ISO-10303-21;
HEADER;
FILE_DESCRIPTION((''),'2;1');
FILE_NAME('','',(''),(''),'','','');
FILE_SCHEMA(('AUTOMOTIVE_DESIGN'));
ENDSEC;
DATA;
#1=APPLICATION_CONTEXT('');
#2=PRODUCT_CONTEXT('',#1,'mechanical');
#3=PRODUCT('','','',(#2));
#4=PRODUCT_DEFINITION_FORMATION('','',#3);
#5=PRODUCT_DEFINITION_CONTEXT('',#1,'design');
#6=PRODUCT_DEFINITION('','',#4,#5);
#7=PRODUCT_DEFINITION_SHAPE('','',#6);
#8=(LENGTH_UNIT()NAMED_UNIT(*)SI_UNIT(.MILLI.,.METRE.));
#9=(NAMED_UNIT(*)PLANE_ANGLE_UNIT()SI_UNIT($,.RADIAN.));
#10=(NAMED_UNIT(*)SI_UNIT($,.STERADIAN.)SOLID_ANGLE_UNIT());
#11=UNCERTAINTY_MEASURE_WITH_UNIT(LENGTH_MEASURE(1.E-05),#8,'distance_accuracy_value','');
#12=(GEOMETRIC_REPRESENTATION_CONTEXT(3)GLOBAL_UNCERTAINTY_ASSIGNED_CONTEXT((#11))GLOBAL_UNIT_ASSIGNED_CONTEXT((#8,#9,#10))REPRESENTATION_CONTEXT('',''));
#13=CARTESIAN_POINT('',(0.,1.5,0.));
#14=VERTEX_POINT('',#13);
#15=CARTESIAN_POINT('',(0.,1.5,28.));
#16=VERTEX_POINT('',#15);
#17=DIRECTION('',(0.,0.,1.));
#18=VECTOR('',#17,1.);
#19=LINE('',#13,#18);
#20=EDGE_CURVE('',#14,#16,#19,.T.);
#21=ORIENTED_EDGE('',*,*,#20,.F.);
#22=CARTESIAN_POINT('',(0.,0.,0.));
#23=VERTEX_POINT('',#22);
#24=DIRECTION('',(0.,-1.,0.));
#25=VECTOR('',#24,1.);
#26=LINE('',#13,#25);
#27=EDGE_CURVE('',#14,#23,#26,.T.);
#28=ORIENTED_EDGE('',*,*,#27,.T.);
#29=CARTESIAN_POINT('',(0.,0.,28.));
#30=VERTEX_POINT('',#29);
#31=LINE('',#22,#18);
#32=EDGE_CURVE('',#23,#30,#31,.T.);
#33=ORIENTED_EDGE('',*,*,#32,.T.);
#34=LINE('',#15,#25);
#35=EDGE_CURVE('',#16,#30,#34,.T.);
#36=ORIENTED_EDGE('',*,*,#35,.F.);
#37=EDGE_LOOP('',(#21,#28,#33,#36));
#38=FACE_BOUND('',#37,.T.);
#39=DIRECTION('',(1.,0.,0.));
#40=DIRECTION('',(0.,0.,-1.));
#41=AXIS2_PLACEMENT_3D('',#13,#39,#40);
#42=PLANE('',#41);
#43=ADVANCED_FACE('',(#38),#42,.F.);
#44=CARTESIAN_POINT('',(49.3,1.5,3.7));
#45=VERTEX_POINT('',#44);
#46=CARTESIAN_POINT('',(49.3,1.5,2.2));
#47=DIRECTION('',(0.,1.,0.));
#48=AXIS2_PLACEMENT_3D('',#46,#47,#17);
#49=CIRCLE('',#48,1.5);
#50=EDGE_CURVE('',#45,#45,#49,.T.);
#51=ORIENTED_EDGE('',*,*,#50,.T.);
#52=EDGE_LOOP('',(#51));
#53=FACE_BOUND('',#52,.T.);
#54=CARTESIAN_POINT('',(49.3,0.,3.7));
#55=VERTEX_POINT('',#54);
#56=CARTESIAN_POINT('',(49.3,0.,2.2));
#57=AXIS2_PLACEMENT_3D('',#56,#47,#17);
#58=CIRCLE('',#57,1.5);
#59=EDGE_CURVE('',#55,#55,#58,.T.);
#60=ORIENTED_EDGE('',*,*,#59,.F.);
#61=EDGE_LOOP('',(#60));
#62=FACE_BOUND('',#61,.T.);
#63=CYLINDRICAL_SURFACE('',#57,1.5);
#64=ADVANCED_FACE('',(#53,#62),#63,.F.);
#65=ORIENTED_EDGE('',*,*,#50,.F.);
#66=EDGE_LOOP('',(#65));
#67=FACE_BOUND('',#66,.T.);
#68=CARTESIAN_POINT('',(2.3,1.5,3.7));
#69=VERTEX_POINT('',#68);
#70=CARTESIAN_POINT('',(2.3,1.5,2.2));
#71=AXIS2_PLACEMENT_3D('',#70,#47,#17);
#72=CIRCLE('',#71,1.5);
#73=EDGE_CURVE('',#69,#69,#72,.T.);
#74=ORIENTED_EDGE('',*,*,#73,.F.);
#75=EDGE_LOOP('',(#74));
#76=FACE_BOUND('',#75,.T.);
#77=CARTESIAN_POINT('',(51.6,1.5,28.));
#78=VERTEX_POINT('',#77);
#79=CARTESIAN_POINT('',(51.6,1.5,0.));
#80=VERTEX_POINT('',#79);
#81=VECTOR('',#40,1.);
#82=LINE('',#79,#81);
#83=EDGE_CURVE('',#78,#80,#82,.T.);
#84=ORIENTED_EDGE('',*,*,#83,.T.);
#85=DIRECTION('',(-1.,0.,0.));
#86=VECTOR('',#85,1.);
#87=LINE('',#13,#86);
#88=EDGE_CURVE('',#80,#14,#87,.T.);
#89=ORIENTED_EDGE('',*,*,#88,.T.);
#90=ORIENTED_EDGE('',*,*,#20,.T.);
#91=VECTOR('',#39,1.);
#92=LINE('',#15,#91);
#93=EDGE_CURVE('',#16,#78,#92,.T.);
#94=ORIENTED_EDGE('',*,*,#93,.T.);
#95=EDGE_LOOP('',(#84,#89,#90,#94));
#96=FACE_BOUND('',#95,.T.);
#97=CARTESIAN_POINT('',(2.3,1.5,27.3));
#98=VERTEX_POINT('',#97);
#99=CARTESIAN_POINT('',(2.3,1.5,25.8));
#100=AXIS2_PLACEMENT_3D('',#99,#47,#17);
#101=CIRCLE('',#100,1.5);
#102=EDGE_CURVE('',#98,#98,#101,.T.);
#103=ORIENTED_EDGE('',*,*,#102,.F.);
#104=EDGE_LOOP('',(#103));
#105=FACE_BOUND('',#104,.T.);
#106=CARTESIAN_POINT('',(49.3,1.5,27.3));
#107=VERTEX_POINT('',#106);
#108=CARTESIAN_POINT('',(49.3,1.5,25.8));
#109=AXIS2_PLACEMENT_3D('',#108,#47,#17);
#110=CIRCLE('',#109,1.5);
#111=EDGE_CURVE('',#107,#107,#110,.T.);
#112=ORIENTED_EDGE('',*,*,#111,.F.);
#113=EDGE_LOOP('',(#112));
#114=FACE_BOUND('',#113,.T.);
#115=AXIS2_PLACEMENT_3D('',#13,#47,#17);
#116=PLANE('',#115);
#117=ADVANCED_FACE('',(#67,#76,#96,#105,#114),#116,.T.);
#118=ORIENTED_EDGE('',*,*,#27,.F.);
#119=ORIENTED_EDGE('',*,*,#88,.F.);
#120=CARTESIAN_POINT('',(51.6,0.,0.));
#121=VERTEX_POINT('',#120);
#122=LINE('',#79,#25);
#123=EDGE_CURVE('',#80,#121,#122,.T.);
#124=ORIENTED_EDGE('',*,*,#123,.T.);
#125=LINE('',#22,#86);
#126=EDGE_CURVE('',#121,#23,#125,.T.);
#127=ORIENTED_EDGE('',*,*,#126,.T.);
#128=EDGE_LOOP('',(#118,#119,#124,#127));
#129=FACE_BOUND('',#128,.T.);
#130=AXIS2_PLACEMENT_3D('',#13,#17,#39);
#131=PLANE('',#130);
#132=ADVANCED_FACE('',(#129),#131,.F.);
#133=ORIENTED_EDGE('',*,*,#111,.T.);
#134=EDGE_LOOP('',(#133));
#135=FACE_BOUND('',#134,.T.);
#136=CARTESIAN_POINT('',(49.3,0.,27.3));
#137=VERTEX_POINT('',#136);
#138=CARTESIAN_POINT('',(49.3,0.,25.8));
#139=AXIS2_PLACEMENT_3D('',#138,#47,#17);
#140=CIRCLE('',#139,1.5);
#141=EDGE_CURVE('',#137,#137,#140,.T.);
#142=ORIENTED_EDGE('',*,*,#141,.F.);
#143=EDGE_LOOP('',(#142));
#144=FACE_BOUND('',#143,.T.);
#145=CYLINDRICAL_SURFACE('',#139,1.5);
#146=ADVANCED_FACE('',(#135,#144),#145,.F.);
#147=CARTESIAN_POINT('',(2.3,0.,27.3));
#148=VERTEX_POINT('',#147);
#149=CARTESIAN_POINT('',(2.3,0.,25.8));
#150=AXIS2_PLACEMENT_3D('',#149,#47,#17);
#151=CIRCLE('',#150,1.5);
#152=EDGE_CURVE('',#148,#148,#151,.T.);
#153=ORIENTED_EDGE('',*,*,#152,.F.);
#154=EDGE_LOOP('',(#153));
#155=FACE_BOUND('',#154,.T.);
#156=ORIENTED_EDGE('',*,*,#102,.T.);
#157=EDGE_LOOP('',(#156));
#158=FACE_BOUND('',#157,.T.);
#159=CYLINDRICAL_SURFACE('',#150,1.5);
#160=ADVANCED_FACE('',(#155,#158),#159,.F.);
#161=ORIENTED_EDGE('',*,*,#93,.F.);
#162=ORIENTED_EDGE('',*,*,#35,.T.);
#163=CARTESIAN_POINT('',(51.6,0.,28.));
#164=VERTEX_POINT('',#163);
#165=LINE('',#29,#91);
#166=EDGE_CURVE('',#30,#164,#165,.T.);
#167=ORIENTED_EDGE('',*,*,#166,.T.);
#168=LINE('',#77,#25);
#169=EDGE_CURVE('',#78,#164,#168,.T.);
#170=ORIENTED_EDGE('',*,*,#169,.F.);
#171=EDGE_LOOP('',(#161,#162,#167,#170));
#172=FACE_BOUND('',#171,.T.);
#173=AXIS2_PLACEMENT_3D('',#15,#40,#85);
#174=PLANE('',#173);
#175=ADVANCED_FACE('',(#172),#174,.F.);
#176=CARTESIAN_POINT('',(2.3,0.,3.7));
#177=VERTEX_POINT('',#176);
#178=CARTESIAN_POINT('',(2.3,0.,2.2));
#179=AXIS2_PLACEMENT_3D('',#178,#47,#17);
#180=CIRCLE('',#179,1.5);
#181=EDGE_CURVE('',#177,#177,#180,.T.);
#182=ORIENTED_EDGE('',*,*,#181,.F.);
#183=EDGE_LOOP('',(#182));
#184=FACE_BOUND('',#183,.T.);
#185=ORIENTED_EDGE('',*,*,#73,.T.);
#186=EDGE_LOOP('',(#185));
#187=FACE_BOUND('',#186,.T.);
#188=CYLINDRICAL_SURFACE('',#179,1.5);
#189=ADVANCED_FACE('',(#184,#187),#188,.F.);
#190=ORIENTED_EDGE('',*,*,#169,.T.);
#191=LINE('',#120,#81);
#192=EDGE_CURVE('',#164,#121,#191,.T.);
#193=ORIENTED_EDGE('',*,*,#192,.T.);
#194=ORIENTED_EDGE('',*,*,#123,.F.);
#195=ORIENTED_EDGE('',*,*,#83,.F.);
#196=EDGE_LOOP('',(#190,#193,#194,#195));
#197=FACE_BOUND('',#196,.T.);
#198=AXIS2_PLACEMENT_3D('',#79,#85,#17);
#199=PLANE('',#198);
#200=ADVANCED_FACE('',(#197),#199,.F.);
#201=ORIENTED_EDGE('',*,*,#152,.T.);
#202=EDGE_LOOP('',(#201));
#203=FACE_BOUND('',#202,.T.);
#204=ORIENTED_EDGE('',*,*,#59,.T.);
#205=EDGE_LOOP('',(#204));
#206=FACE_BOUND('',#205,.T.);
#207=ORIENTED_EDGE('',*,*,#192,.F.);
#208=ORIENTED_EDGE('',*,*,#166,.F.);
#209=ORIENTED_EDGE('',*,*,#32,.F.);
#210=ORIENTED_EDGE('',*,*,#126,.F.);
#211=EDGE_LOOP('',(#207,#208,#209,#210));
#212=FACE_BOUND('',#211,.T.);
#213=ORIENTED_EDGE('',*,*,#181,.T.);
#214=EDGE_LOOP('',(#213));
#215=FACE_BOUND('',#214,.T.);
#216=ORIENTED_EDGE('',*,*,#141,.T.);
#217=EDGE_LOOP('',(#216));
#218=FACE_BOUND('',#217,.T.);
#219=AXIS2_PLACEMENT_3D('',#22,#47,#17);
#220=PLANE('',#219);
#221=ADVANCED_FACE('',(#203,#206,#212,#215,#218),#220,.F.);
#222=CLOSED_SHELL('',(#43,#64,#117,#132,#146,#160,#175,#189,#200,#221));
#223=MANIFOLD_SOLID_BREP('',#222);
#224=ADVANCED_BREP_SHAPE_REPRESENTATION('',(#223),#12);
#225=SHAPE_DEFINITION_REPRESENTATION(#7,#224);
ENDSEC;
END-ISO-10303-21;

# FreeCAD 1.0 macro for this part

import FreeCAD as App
import Part
import Sketcher

doc = App.newDocument("Part")
params = doc.addObject("Spreadsheet::Sheet", "Params")
for row, (alias, value) in enumerate([
    ("sketch1_height", "28 mm"),
    ("sketch1_width", "51.6 mm"),
    ("pad1_length", "1.5 mm"),
    ("sketch2_diameter", "3 mm"),
    ("pocket1_length", "1.5 mm"),
], start=1):
    params.set(f"A{row}", alias)
    params.set(f"B{row}", "=" + value)
    params.setAlias(f"B{row}", alias)

body = doc.addObject("PartDesign::Body", "Body")

# Sketch on XZ plane
sketch1 = body.newObject("Sketcher::SketchObject", "Sketch")
sketch1.AttachmentSupport = (doc.getObject("XZ_Plane"), [""])
sketch1.MapMode = "FlatFace"
sketch1.addGeometry([
    Part.LineSegment(App.Vector(0, 0, 0), App.Vector(0, 28, 0)),
    Part.LineSegment(App.Vector(0, 28, 0), App.Vector(52, 28, 0)),
    Part.LineSegment(App.Vector(52, 28, 0), App.Vector(52, 0, 0)),
    Part.LineSegment(App.Vector(52, 0, 0), App.Vector(0, 0, 0)),
], False)
sketch1.addConstraint([
    Sketcher.Constraint("Coincident", 0, 2, 1, 1),
    Sketcher.Constraint("Coincident", 1, 2, 2, 1),
    Sketcher.Constraint("Coincident", 2, 2, 3, 1),
    Sketcher.Constraint("Coincident", 3, 2, 0, 1),
    Sketcher.Constraint("Vertical", 0),
    Sketcher.Constraint("Horizontal", 1),
    Sketcher.Constraint("Vertical", 2),
    Sketcher.Constraint("Horizontal", 3),
    Sketcher.Constraint("Coincident", 3, 2, -1, 1),
    Sketcher.Constraint("DistanceY", 0, 1, 0, 2, 28.0),
    Sketcher.Constraint("DistanceX", 1, 1, 1, 2, 51.6),
])
sketch1.setExpression("Constraints[9]", "Params.sketch1_height")
sketch1.setExpression("Constraints[10]", "Params.sketch1_width")
pad1 = body.newObject("PartDesign::Pad", "Pad")
pad1.Profile = sketch1
pad1.setExpression("Length", "Params.pad1_length")
pad1.Reversed = True

# Sketch on XZ plane
sketch2 = body.newObject("Sketcher::SketchObject", "Sketch001")
sketch2.AttachmentSupport = (doc.getObject("XZ_Plane"), [""])
sketch2.MapMode = "FlatFace"
sketch2.AttachmentOffset = App.Placement(App.Vector(0, 0, -1.5), App.Rotation())
sketch2.addGeometry([
    Part.Circle(App.Vector(2.3, 2.2, 0), App.Vector(0, 0, 1), 1.5),
    Part.Circle(App.Vector(49.3, 2.2, 0), App.Vector(0, 0, 1), 1.5),
    Part.Circle(App.Vector(49.3, 25.8, 0), App.Vector(0, 0, 1), 1.5),
    Part.Circle(App.Vector(2.3, 25.8, 0), App.Vector(0, 0, 1), 1.5),
], False)
sketch2.addConstraint([
    Sketcher.Constraint("Equal", 0, 1),
    Sketcher.Constraint("Equal", 1, 2),
    Sketcher.Constraint("Equal", 2, 3),
    Sketcher.Constraint("Horizontal", 0, 3, 1, 3),
    Sketcher.Constraint("Horizontal", 2, 3, 3, 3),
    Sketcher.Constraint("Vertical", 1, 3, 2, 3),
    Sketcher.Constraint("Vertical", 0, 3, 3, 3),
    Sketcher.Constraint("Diameter", 0, 3.0),
    Sketcher.Constraint("DistanceX", 0, 3, 1, 3, 47.0),
    Sketcher.Constraint("DistanceX", -1, 1, 0, 3, 2.3),
    Sketcher.Constraint("DistanceY", -1, 1, 0, 3, 2.2),
    Sketcher.Constraint("DistanceY", -1, 1, 2, 3, 25.8),
])
sketch2.setExpression("Constraints[7]", "Params.sketch2_diameter")
pocket1 = body.newObject("PartDesign::Pocket", "Pocket")
pocket1.Profile = sketch2
pocket1.setExpression("Length", "Params.pocket1_length")
pocket1.Reversed = True

doc.recompute()
